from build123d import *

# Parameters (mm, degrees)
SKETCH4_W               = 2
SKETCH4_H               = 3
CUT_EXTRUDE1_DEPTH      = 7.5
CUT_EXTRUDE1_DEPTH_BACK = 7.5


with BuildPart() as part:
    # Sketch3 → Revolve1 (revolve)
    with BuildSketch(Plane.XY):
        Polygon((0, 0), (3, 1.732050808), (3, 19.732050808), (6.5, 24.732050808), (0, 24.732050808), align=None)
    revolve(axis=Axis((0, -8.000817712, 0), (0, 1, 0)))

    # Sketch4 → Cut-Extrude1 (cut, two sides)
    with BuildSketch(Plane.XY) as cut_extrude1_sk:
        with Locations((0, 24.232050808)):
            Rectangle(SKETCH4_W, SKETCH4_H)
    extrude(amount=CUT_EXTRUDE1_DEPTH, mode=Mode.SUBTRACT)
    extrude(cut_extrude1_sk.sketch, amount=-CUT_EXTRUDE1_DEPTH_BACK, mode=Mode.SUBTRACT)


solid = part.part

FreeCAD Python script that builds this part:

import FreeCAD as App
import Part
import Sketcher
from FreeCAD import Vector
Q = App.Units.Quantity


def add_polygon(sketch, points):
    """Adds a closed chain of lines whose ends are joined by coincident constraints."""
    first, n = sketch.GeometryCount, len(points)
    for a, b in zip(points, points[1:] + points[:1]):
        sketch.addGeometry(Part.LineSegment(App.Vector(*a, 0), App.Vector(*b, 0)), False)
    for i in range(n):
        sketch.addConstraint(Sketcher.Constraint("Coincident", first + i, 2, first + (i + 1) % n, 1))

doc = App.newDocument("Part")
body = doc.addObject("PartDesign::Body", "Body")

# Sketch on XY plane
sketch1 = doc.addObject("Sketcher::SketchObject", "Sketch")
body.addObject(sketch1)
sketch1.AttachmentSupport = (doc.XY_Plane, [""])
sketch1.MapMode = "FlatFace"
add_polygon(sketch1, [(0, 0), (3, 1.7), (3, 19.7), (6.5, 24.7), (0, 24.7)])  # lines 0-4
sketch1.addConstraint([
    Sketcher.Constraint("Vertical", 1),
    Sketcher.Constraint("Horizontal", 3),
    Sketcher.Constraint("Vertical", 4),
    Sketcher.Constraint("Coincident", 4, 2, -1, 1),
    Sketcher.Constraint("DistanceY", 1, 1, 1, 2, 18.0),
    Sketcher.Constraint("Angle", 0, Q("30 deg")),
    Sketcher.Constraint("DistanceX", 3, 2, 3, 1, 6.5),
    Sketcher.Constraint("DistanceX", -1, 1, 0, 2, 3.0),
    Sketcher.Constraint("DistanceY", 1, 2, 2, 2, 5.0),
])
revolution = doc.addObject("PartDesign::Revolution", "Revolution")
body.addObject(revolution)
revolution.Profile = sketch1
revolution.ReferenceAxis = (sketch1, ["V_Axis"])
revolution.Angle = 360

# Sketch on XY plane
sketch2 = doc.addObject("Sketcher::SketchObject", "Sketch001")
body.addObject(sketch2)
sketch2.AttachmentSupport = (doc.XY_Plane, [""])
sketch2.MapMode = "FlatFace"
add_polygon(sketch2, [(-1, 25.7), (-1, 22.7), (1, 22.7), (1, 25.7)])  # lines 0-3
sketch2.addConstraint([
    Sketcher.Constraint("Vertical", 0),
    Sketcher.Constraint("Horizontal", 1),
    Sketcher.Constraint("Vertical", 2),
    Sketcher.Constraint("Horizontal", 3),
    Sketcher.Constraint("DistanceX", 1, 1, 1, 2, 2.0),
    Sketcher.Constraint("DistanceY", 0, 2, 0, 1, 3.0),
    Sketcher.Constraint("DistanceX", 0, 2, -1, 1, 1.0),
    Sketcher.Constraint("DistanceY", -1, 1, 0, 2, 22.732051),
])
pocket1 = doc.addObject("PartDesign::Pocket", "Pocket")
body.addObject(pocket1)
pocket1.Profile = sketch2
pocket1.Type = "ThroughAll"
pocket1.Midplane = True

doc.recompute()
